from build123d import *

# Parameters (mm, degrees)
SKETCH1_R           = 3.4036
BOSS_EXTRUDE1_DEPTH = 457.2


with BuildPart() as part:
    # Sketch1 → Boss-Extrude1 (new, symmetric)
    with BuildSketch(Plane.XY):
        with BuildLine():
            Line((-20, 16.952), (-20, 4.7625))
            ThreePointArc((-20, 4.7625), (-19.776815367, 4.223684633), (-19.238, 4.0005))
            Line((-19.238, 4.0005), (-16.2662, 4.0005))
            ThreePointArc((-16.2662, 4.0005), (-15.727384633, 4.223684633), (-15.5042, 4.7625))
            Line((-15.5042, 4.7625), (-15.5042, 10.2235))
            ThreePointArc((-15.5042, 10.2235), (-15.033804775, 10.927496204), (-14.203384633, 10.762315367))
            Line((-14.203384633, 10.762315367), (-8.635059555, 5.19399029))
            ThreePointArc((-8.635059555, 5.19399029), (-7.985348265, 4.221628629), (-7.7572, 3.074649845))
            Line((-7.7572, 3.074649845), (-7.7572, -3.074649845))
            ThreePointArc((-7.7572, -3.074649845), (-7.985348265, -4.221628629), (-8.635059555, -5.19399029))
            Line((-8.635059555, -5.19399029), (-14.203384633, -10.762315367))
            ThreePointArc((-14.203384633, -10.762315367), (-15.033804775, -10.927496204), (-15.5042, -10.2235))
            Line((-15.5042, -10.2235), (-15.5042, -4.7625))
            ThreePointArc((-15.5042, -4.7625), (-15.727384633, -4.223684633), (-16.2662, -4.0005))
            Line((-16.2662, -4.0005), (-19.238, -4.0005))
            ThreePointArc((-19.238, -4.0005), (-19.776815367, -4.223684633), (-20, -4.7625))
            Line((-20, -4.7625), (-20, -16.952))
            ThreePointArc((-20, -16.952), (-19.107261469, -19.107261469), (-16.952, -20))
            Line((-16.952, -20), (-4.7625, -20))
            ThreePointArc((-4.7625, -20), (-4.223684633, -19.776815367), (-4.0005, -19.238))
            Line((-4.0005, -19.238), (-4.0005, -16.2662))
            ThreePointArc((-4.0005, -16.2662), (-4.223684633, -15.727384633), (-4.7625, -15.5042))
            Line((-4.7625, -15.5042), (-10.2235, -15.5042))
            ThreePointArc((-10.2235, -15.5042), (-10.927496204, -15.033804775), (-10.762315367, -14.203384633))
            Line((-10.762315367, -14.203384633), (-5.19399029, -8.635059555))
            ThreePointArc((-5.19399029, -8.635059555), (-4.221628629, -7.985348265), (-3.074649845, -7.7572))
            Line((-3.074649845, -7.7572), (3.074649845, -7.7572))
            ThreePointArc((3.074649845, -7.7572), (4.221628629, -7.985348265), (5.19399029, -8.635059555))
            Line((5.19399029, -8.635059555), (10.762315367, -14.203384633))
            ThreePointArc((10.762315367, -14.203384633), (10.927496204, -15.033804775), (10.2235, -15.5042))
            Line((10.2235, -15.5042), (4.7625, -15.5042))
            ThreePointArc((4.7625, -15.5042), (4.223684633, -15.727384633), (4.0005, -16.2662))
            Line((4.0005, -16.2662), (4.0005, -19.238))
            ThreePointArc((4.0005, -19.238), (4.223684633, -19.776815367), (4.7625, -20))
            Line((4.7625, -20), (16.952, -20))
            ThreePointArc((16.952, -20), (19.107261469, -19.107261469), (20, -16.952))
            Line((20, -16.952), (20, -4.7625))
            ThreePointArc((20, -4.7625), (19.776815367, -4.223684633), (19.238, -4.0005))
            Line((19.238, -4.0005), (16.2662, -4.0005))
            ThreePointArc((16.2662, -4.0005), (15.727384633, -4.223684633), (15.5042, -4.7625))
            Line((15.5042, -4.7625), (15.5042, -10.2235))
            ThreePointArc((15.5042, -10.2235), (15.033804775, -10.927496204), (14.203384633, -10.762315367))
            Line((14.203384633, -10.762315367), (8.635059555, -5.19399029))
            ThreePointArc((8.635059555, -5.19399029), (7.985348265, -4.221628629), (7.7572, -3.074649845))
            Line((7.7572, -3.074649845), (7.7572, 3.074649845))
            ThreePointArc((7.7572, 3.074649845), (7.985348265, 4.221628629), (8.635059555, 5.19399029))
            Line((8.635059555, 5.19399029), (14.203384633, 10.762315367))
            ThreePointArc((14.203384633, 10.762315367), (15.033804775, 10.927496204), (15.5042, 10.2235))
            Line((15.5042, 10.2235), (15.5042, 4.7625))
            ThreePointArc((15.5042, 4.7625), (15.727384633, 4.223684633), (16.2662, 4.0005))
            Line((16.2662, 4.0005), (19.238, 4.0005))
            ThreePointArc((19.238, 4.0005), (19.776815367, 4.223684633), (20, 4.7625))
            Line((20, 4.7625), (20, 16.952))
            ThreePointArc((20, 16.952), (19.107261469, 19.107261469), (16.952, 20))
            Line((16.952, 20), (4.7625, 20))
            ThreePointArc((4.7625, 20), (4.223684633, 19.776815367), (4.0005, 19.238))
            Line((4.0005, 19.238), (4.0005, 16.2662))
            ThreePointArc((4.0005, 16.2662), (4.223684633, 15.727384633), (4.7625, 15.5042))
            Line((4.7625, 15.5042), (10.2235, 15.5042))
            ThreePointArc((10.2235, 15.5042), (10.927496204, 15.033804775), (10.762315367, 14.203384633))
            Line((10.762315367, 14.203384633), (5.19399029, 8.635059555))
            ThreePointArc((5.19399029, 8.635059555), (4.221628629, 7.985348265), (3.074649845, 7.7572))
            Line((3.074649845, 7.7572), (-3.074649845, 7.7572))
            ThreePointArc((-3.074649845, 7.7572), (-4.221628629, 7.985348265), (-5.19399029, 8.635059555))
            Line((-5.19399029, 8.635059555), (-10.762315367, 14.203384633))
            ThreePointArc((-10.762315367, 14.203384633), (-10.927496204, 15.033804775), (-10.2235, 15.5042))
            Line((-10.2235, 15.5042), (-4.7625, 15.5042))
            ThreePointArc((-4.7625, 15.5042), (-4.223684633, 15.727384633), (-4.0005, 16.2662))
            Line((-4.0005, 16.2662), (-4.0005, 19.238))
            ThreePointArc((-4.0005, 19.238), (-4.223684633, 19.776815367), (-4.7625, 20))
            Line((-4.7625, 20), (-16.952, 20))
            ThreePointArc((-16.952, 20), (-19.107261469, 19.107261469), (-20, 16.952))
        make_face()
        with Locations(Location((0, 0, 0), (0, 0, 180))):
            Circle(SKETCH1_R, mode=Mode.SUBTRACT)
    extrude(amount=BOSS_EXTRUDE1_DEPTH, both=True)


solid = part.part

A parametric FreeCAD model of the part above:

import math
import FreeCAD as App
import Part
import Sketcher

V = App.Vector
Q = App.Units.Quantity

doc = App.newDocument("Part")
body = doc.addObject("PartDesign::Body", "Body")

# Sketch on XY plane
sketch1 = doc.addObject("Sketcher::SketchObject", "Sketch")
body.addObject(sketch1)
sketch1.AttachmentSupport = (doc.XY_Plane, [""])
sketch1.MapMode = "FlatFace"
sketch1.addGeometry([
    Part.LineSegment(V(-20, 17, 0), V(-20, 4.8, 0)),  # 0
    Part.ArcOfCircle(Part.Circle(V(-19.2, 4.8, 0), V(0, 0, 1), 0.8), math.radians(-180), math.radians(-90)),  # 1
    Part.LineSegment(V(-19.2, 4, 0), V(-16.3, 4, 0)),  # 2
    Part.ArcOfCircle(Part.Circle(V(-16.3, 4.8, 0), V(0, 0, 1), 0.8), math.radians(-90), math.radians(0)),  # 3
    Part.LineSegment(V(-15.5, 4.8, 0), V(-15.5, 10.2, 0)),  # 4
    Part.ArcOfCircle(Part.Circle(V(-14.7, 10.2, 0), V(0, 0, 1), 0.8), math.radians(45), math.radians(180)),  # 5
    Part.LineSegment(V(-14.2, 10.8, 0), V(-8.6, 5.2, 0)),  # 6
    Part.ArcOfCircle(Part.Circle(V(-10.8, 3.1, 0), V(0, 0, 1), 3), math.radians(0), math.radians(45)),  # 7
    Part.LineSegment(V(-7.8, 3.1, 0), V(-7.8, -3.1, 0)),  # 8
    Part.ArcOfCircle(Part.Circle(V(-10.8, -3.1, 0), V(0, 0, 1), 3), math.radians(-45), math.radians(0)),  # 9
    Part.LineSegment(V(-8.6, -5.2, 0), V(-14.2, -10.8, 0)),  # 10
    Part.ArcOfCircle(Part.Circle(V(-14.7, -10.2, 0), V(0, 0, 1), 0.8), math.radians(180), math.radians(315)),  # 11
    Part.LineSegment(V(-15.5, -10.2, 0), V(-15.5, -4.8, 0)),  # 12
    Part.ArcOfCircle(Part.Circle(V(-16.3, -4.8, 0), V(0, 0, 1), 0.8), math.radians(0), math.radians(90)),  # 13
    Part.LineSegment(V(-16.3, -4, 0), V(-19.2, -4, 0)),  # 14
    Part.ArcOfCircle(Part.Circle(V(-19.2, -4.8, 0), V(0, 0, 1), 0.8), math.radians(90), math.radians(180)),  # 15
    Part.LineSegment(V(-20, -4.8, 0), V(-20, -17, 0)),  # 16
    Part.ArcOfCircle(Part.Circle(V(-17, -17, 0), V(0, 0, 1), 3), math.radians(180), math.radians(270)),  # 17
    Part.LineSegment(V(-17, -20, 0), V(-4.8, -20, 0)),  # 18
    Part.ArcOfCircle(Part.Circle(V(-4.8, -19.2, 0), V(0, 0, 1), 0.8), math.radians(-90), math.radians(0)),  # 19
    Part.LineSegment(V(-4, -19.2, 0), V(-4, -16.3, 0)),  # 20
    Part.ArcOfCircle(Part.Circle(V(-4.8, -16.3, 0), V(0, 0, 1), 0.8), math.radians(0), math.radians(90)),  # 21
    Part.LineSegment(V(-4.8, -15.5, 0), V(-10.2, -15.5, 0)),  # 22
    Part.ArcOfCircle(Part.Circle(V(-10.2, -14.7, 0), V(0, 0, 1), 0.8), math.radians(135), math.radians(270)),  # 23
    Part.LineSegment(V(-10.8, -14.2, 0), V(-5.2, -8.6, 0)),  # 24
    Part.ArcOfCircle(Part.Circle(V(-3.1, -10.8, 0), V(0, 0, 1), 3), math.radians(90), math.radians(135)),  # 25
    Part.LineSegment(V(-3.1, -7.8, 0), V(3.1, -7.8, 0)),  # 26
    Part.ArcOfCircle(Part.Circle(V(3.1, -10.8, 0), V(0, 0, 1), 3), math.radians(45), math.radians(90)),  # 27
    Part.LineSegment(V(5.2, -8.6, 0), V(10.8, -14.2, 0)),  # 28
    Part.ArcOfCircle(Part.Circle(V(10.2, -14.7, 0), V(0, 0, 1), 0.8), math.radians(-90), math.radians(45)),  # 29
    Part.LineSegment(V(10.2, -15.5, 0), V(4.8, -15.5, 0)),  # 30
    Part.ArcOfCircle(Part.Circle(V(4.8, -16.3, 0), V(0, 0, 1), 0.8), math.radians(90), math.radians(180)),  # 31
    Part.LineSegment(V(4, -16.3, 0), V(4, -19.2, 0)),  # 32
    Part.ArcOfCircle(Part.Circle(V(4.8, -19.2, 0), V(0, 0, 1), 0.8), math.radians(-180), math.radians(-90)),  # 33
    Part.LineSegment(V(4.8, -20, 0), V(17, -20, 0)),  # 34
    Part.ArcOfCircle(Part.Circle(V(17, -17, 0), V(0, 0, 1), 3), math.radians(-90), math.radians(0)),  # 35
    Part.LineSegment(V(20, -17, 0), V(20, -4.8, 0)),  # 36
    Part.ArcOfCircle(Part.Circle(V(19.2, -4.8, 0), V(0, 0, 1), 0.8), math.radians(0), math.radians(90)),  # 37
    Part.LineSegment(V(19.2, -4, 0), V(16.3, -4, 0)),  # 38
    Part.ArcOfCircle(Part.Circle(V(16.3, -4.8, 0), V(0, 0, 1), 0.8), math.radians(90), math.radians(180)),  # 39
    Part.LineSegment(V(15.5, -4.8, 0), V(15.5, -10.2, 0)),  # 40
    Part.ArcOfCircle(Part.Circle(V(14.7, -10.2, 0), V(0, 0, 1), 0.8), math.radians(-135), math.radians(0)),  # 41
    Part.LineSegment(V(14.2, -10.8, 0), V(8.6, -5.2, 0)),  # 42
    Part.ArcOfCircle(Part.Circle(V(10.8, -3.1, 0), V(0, 0, 1), 3), math.radians(180), math.radians(225)),  # 43
    Part.LineSegment(V(7.8, -3.1, 0), V(7.8, 3.1, 0)),  # 44
    Part.ArcOfCircle(Part.Circle(V(10.8, 3.1, 0), V(0, 0, 1), 3), math.radians(135), math.radians(180)),  # 45
    Part.LineSegment(V(8.6, 5.2, 0), V(14.2, 10.8, 0)),  # 46
    Part.ArcOfCircle(Part.Circle(V(14.7, 10.2, 0), V(0, 0, 1), 0.8), math.radians(0), math.radians(135)),  # 47
    Part.LineSegment(V(15.5, 10.2, 0), V(15.5, 4.8, 0)),  # 48
    Part.ArcOfCircle(Part.Circle(V(16.3, 4.8, 0), V(0, 0, 1), 0.8), math.radians(-180), math.radians(-90)),  # 49
    Part.LineSegment(V(16.3, 4, 0), V(19.2, 4, 0)),  # 50
    Part.ArcOfCircle(Part.Circle(V(19.2, 4.8, 0), V(0, 0, 1), 0.8), math.radians(-90), math.radians(0)),  # 51
    Part.LineSegment(V(20, 4.8, 0), V(20, 17, 0)),  # 52
    Part.ArcOfCircle(Part.Circle(V(17, 17, 0), V(0, 0, 1), 3), math.radians(0), math.radians(90)),  # 53
    Part.LineSegment(V(17, 20, 0), V(4.8, 20, 0)),  # 54
    Part.ArcOfCircle(Part.Circle(V(4.8, 19.2, 0), V(0, 0, 1), 0.8), math.radians(90), math.radians(180)),  # 55
    Part.LineSegment(V(4, 19.2, 0), V(4, 16.3, 0)),  # 56
    Part.ArcOfCircle(Part.Circle(V(4.8, 16.3, 0), V(0, 0, 1), 0.8), math.radians(-180), math.radians(-90)),  # 57
    Part.LineSegment(V(4.8, 15.5, 0), V(10.2, 15.5, 0)),  # 58
    Part.ArcOfCircle(Part.Circle(V(10.2, 14.7, 0), V(0, 0, 1), 0.8), math.radians(-45), math.radians(90)),  # 59
    Part.LineSegment(V(10.8, 14.2, 0), V(5.2, 8.6, 0)),  # 60
    Part.ArcOfCircle(Part.Circle(V(3.1, 10.8, 0), V(0, 0, 1), 3), math.radians(-90), math.radians(-45)),  # 61
    Part.LineSegment(V(3.1, 7.8, 0), V(-3.1, 7.8, 0)),  # 62
    Part.ArcOfCircle(Part.Circle(V(-3.1, 10.8, 0), V(0, 0, 1), 3), math.radians(-135), math.radians(-90)),  # 63
    Part.LineSegment(V(-5.2, 8.6, 0), V(-10.8, 14.2, 0)),  # 64
    Part.ArcOfCircle(Part.Circle(V(-10.2, 14.7, 0), V(0, 0, 1), 0.8), math.radians(90), math.radians(225)),  # 65
    Part.LineSegment(V(-10.2, 15.5, 0), V(-4.8, 15.5, 0)),  # 66
    Part.ArcOfCircle(Part.Circle(V(-4.8, 16.3, 0), V(0, 0, 1), 0.8), math.radians(-90), math.radians(0)),  # 67
    Part.LineSegment(V(-4, 16.3, 0), V(-4, 19.2, 0)),  # 68
    Part.ArcOfCircle(Part.Circle(V(-4.8, 19.2, 0), V(0, 0, 1), 0.8), math.radians(0), math.radians(90)),  # 69
    Part.LineSegment(V(-4.8, 20, 0), V(-17, 20, 0)),  # 70
    Part.ArcOfCircle(Part.Circle(V(-17, 17, 0), V(0, 0, 1), 3), math.radians(90), math.radians(180)),  # 71
    Part.Circle(V(0, 0, 0), V(0, 0, 1), 3.4),  # 72
], False)
sketch1.addConstraint([
    Sketcher.Constraint("Tangent", 0, 2, 1, 1),
    Sketcher.Constraint("Tangent", 1, 2, 2, 1),
    Sketcher.Constraint("Tangent", 2, 2, 3, 1),
    Sketcher.Constraint("Tangent", 3, 2, 4, 1),
    Sketcher.Constraint("Tangent", 4, 2, 5, 2),
    Sketcher.Constraint("Tangent", 5, 1, 6, 1),
    Sketcher.Constraint("Tangent", 6, 2, 7, 2),
    Sketcher.Constraint("Tangent", 7, 1, 8, 1),
    Sketcher.Constraint("Tangent", 8, 2, 9, 2),
    Sketcher.Constraint("Tangent", 9, 1, 10, 1),
    Sketcher.Constraint("Tangent", 10, 2, 11, 2),
    Sketcher.Constraint("Tangent", 11, 1, 12, 1),
    Sketcher.Constraint("Tangent", 12, 2, 13, 1),
    Sketcher.Constraint("Tangent", 13, 2, 14, 1),
    Sketcher.Constraint("Tangent", 14, 2, 15, 1),
    Sketcher.Constraint("Tangent", 15, 2, 16, 1),
    Sketcher.Constraint("Tangent", 16, 2, 17, 1),
    Sketcher.Constraint("Tangent", 17, 2, 18, 1),
    Sketcher.Constraint("Tangent", 18, 2, 19, 1),
    Sketcher.Constraint("Tangent", 19, 2, 20, 1),
    Sketcher.Constraint("Tangent", 20, 2, 21, 1),
    Sketcher.Constraint("Tangent", 21, 2, 22, 1),
    Sketcher.Constraint("Tangent", 22, 2, 23, 2),
    Sketcher.Constraint("Tangent", 23, 1, 24, 1),
    Sketcher.Constraint("Tangent", 24, 2, 25, 2),
    Sketcher.Constraint("Tangent", 25, 1, 26, 1),
    Sketcher.Constraint("Tangent", 26, 2, 27, 2),
    Sketcher.Constraint("Tangent", 27, 1, 28, 1),
    Sketcher.Constraint("Tangent", 28, 2, 29, 2),
    Sketcher.Constraint("Tangent", 29, 1, 30, 1),
    Sketcher.Constraint("Tangent", 30, 2, 31, 1),
    Sketcher.Constraint("Tangent", 31, 2, 32, 1),
    Sketcher.Constraint("Tangent", 32, 2, 33, 1),
    Sketcher.Constraint("Tangent", 33, 2, 34, 1),
    Sketcher.Constraint("Tangent", 34, 2, 35, 1),
    Sketcher.Constraint("Tangent", 35, 2, 36, 1),
    Sketcher.Constraint("Tangent", 36, 2, 37, 1),
    Sketcher.Constraint("Tangent", 37, 2, 38, 1),
    Sketcher.Constraint("Tangent", 38, 2, 39, 1),
    Sketcher.Constraint("Tangent", 39, 2, 40, 1),
    Sketcher.Constraint("Tangent", 40, 2, 41, 2),
    Sketcher.Constraint("Tangent", 41, 1, 42, 1),
    Sketcher.Constraint("Tangent", 42, 2, 43, 2),
    Sketcher.Constraint("Tangent", 43, 1, 44, 1),
    Sketcher.Constraint("Tangent", 44, 2, 45, 2),
    Sketcher.Constraint("Tangent", 45, 1, 46, 1),
    Sketcher.Constraint("Tangent", 46, 2, 47, 2),
    Sketcher.Constraint("Tangent", 47, 1, 48, 1),
    Sketcher.Constraint("Tangent", 48, 2, 49, 1),
    Sketcher.Constraint("Tangent", 49, 2, 50, 1),
    Sketcher.Constraint("Tangent", 50, 2, 51, 1),
    Sketcher.Constraint("Tangent", 51, 2, 52, 1),
    Sketcher.Constraint("Tangent", 52, 2, 53, 1),
    Sketcher.Constraint("Tangent", 53, 2, 54, 1),
    Sketcher.Constraint("Tangent", 54, 2, 55, 1),
    Sketcher.Constraint("Tangent", 55, 2, 56, 1),
    Sketcher.Constraint("Tangent", 56, 2, 57, 1),
    Sketcher.Constraint("Tangent", 57, 2, 58, 1),
    Sketcher.Constraint("Tangent", 58, 2, 59, 2),
    Sketcher.Constraint("Tangent", 59, 1, 60, 1),
    Sketcher.Constraint("Tangent", 60, 2, 61, 2),
    Sketcher.Constraint("Tangent", 61, 1, 62, 1),
    Sketcher.Constraint("Tangent", 62, 2, 63, 2),
    Sketcher.Constraint("Tangent", 63, 1, 64, 1),
    Sketcher.Constraint("Tangent", 64, 2, 65, 2),
    Sketcher.Constraint("Tangent", 65, 1, 66, 1),
    Sketcher.Constraint("Tangent", 66, 2, 67, 1),
    Sketcher.Constraint("Tangent", 67, 2, 68, 1),
    Sketcher.Constraint("Tangent", 68, 2, 69, 1),
    Sketcher.Constraint("Tangent", 69, 2, 70, 1),
    Sketcher.Constraint("Tangent", 70, 2, 71, 1),
    Sketcher.Constraint("Tangent", 71, 2, 0, 1),
    Sketcher.Constraint("Vertical", 0),
    Sketcher.Constraint("Horizontal", 2),
    Sketcher.Constraint("Vertical", 4),
    Sketcher.Constraint("Vertical", 8),
    Sketcher.Constraint("Vertical", 12),
    Sketcher.Constraint("Horizontal", 14),
    Sketcher.Constraint("Vertical", 16),
    Sketcher.Constraint("Horizontal", 18),
    Sketcher.Constraint("Vertical", 20),
    Sketcher.Constraint("Horizontal", 22),
    Sketcher.Constraint("Horizontal", 26),
    Sketcher.Constraint("Horizontal", 30),
    Sketcher.Constraint("Vertical", 32),
    Sketcher.Constraint("Horizontal", 34),
    Sketcher.Constraint("Vertical", 36),
    Sketcher.Constraint("Horizontal", 38),
    Sketcher.Constraint("Vertical", 40),
    Sketcher.Constraint("Vertical", 44),
    Sketcher.Constraint("Vertical", 48),
    Sketcher.Constraint("Horizontal", 50),
    Sketcher.Constraint("Vertical", 52),
    Sketcher.Constraint("Horizontal", 54),
    Sketcher.Constraint("Vertical", 56),
    Sketcher.Constraint("Horizontal", 58),
    Sketcher.Constraint("Horizontal", 62),
    Sketcher.Constraint("Horizontal", 66),
    Sketcher.Constraint("Vertical", 68),
    Sketcher.Constraint("Horizontal", 70),
    Sketcher.Constraint("Coincident", 72, 3, -1, 1),
    Sketcher.Constraint("Equal", 1, 3),
    Sketcher.Constraint("Equal", 3, 5),
    Sketcher.Constraint("Equal", 7, 9),
    Sketcher.Constraint("Equal", 5, 11),
    Sketcher.Constraint("Equal", 11, 13),
    Sketcher.Constraint("Equal", 13, 15),
    Sketcher.Constraint("Equal", 15, 19),
    Sketcher.Constraint("Equal", 19, 21),
    Sketcher.Constraint("Equal", 21, 23),
    Sketcher.Constraint("Equal", 9, 25),
    Sketcher.Constraint("Equal", 25, 27),
    Sketcher.Constraint("Equal", 23, 29),
    Sketcher.Constraint("Equal", 29, 31),
    Sketcher.Constraint("Equal", 31, 33),
    Sketcher.Constraint("Equal", 17, 35),
    Sketcher.Constraint("Equal", 33, 37),
    Sketcher.Constraint("Equal", 37, 39),
    Sketcher.Constraint("Equal", 39, 41),
    Sketcher.Constraint("Equal", 27, 43),
    Sketcher.Constraint("Equal", 43, 45),
    Sketcher.Constraint("Equal", 41, 47),
    Sketcher.Constraint("Equal", 47, 49),
    Sketcher.Constraint("Equal", 49, 51),
    Sketcher.Constraint("Equal", 35, 53),
    Sketcher.Constraint("Equal", 51, 55),
    Sketcher.Constraint("Equal", 55, 57),
    Sketcher.Constraint("Equal", 57, 59),
    Sketcher.Constraint("Equal", 45, 61),
    Sketcher.Constraint("Equal", 61, 63),
    Sketcher.Constraint("Equal", 59, 65),
    Sketcher.Constraint("Equal", 65, 67),
    Sketcher.Constraint("Equal", 67, 69),
    Sketcher.Constraint("Equal", 53, 71),
    Sketcher.Constraint("Symmetric", 1, 3, 37, 3, -1, 1),
    Sketcher.Constraint("Symmetric", 5, 3, 41, 3, -1, 1),
    Sketcher.Constraint("Symmetric", 7, 3, 43, 3, -1, 1),
    Sketcher.Constraint("Symmetric", 11, 3, 47, 3, -1, 1),
    Sketcher.Constraint("Symmetric", 15, 3, 51, 3, -1, 1),
    Sketcher.Constraint("Symmetric", 19, 3, 55, 3, -1, 1),
    Sketcher.Constraint("Symmetric", 23, 3, 59, 3, -1, 1),
    Sketcher.Constraint("Symmetric", 25, 3, 61, 3, -1, 1),
    Sketcher.Constraint("Symmetric", 29, 3, 65, 3, -1, 1),
    Sketcher.Constraint("Symmetric", 33, 3, 69, 3, -1, 1),
    Sketcher.Constraint("Symmetric", 23, 3, 29, 3, -2),
    Sketcher.Constraint("Symmetric", 19, 3, 33, 3, -2),
    Sketcher.Constraint("Symmetric", 15, 3, 37, 3, -2),
    Sketcher.Constraint("Symmetric", 11, 3, 41, 3, -2),
    Sketcher.Constraint("Perpendicular", 6, 10),
    Sketcher.Constraint("Parallel", 10, 24),
    Sketcher.Constraint("Perpendicular", 24, 28),
    Sketcher.Constraint("Perpendicular", 42, 46),
    Sketcher.Constraint("Perpendicular", 60, 64),
    Sketcher.Constraint("Horizontal", 9, 3, 43, 3),
    Sketcher.Constraint("Equal", 70, 0),
    Sketcher.Constraint("Equal", 66, 4),
    Sketcher.Constraint("Equal", 62, 8),
    Sketcher.Constraint("Equal", 50, 20),
    Sketcher.Constraint("Equal", 10, 24),
    Sketcher.Constraint("Radius", 1, Q("0.03 in")),
    Sketcher.Constraint("Radius", 17, Q("0.12 in")),
    Sketcher.Constraint("Diameter", 72, Q("0.268 in")),
    Sketcher.Constraint("Radius", 7, Q("0.118 in")),
    Sketcher.Constraint("DistanceX", 2, 1, 2, 2, Q("0.117 in")),
    Sketcher.Constraint("DistanceX", 22, 2, 22, 1, Q("0.215 in")),
    Sketcher.Constraint("DistanceY", -1, 1, 1, 3, Q("0.1875 in")),
    Sketcher.Constraint("DistanceX", 18, 1, 18, 2, 12.1895),
    Sketcher.Constraint("DistanceX", 26, 1, 26, 2, 6.1493),
])
pad1 = doc.addObject("PartDesign::Pad", "Pad")
body.addObject(pad1)
pad1.Profile = sketch1
pad1.Length = Q("36 in")
pad1.Midplane = True

doc.recompute()
